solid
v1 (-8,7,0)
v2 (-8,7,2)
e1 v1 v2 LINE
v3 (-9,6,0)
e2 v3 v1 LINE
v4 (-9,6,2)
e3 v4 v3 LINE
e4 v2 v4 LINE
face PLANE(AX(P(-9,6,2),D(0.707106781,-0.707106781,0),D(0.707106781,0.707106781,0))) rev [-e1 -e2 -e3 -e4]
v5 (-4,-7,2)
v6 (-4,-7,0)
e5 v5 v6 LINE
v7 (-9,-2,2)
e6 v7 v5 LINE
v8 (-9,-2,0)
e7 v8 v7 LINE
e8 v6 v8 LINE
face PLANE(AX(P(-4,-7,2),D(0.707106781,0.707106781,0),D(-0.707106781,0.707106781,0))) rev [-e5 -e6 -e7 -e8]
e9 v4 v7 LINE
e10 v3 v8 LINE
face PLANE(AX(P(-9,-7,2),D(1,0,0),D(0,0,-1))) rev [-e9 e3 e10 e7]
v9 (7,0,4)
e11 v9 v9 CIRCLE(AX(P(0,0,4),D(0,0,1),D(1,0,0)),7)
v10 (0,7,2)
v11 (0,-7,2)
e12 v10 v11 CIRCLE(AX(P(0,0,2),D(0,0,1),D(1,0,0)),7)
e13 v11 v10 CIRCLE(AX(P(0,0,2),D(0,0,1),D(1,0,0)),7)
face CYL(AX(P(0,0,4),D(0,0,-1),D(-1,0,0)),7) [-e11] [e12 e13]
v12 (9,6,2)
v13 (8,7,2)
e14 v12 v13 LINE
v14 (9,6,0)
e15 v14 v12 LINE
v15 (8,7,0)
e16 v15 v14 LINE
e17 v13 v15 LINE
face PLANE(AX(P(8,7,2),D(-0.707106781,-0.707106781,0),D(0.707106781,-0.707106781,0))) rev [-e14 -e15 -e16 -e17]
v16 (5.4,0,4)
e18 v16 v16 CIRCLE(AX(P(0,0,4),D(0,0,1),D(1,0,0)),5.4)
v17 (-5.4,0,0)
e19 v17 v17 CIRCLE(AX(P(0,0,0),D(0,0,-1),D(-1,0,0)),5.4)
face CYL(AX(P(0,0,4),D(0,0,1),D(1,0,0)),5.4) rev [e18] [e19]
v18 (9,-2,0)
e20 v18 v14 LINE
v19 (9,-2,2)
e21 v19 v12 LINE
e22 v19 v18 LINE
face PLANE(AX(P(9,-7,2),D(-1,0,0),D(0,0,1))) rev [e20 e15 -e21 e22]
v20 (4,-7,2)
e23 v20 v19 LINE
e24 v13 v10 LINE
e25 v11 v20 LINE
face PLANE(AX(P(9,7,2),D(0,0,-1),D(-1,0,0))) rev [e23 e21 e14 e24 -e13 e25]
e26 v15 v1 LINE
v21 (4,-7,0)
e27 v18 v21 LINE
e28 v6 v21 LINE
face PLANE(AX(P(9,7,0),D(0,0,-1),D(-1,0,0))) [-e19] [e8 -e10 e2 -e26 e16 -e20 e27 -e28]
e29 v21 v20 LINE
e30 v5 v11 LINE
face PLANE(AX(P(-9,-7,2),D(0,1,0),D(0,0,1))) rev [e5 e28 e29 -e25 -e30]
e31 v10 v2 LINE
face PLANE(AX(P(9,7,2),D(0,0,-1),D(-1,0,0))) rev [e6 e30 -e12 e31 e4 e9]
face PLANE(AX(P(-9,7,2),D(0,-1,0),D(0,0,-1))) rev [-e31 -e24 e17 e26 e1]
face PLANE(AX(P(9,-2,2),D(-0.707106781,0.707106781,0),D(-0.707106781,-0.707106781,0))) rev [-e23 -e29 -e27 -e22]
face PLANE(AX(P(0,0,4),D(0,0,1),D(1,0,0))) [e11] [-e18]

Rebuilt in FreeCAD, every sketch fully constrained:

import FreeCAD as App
import Part
import Sketcher

V = App.Vector
Q = App.Units.Quantity


def edges_at(feature, points):
    """Names of the edges that pass closest to the given points."""
    edges = feature.Shape.Edges
    near = lambda p: min(range(len(edges)), key=lambda i: edges[i].distToShape(Part.Vertex(*p))[0])
    return sorted({f"Edge{near(p) + 1}" for p in points})

doc = App.newDocument("Part")
body = doc.addObject("PartDesign::Body", "Body")

# Sketch on XY plane
sketch1 = body.newObject("Sketcher::SketchObject", "Sketch")
sketch1.AttachmentSupport = (doc.getObject("XY_Plane"), [""])
sketch1.MapMode = "FlatFace"
sketch1.addGeometry([
    Part.LineSegment(V(-9, 7, 0), V(-9, -7, 0)),
    Part.LineSegment(V(-9, -7, 0), V(9, -7, 0)),
    Part.LineSegment(V(9, -7, 0), V(9, 7, 0)),
    Part.LineSegment(V(9, 7, 0), V(-9, 7, 0)),
], False)
sketch1.addConstraint([
    Sketcher.Constraint("Coincident", 0, 2, 1, 1),
    Sketcher.Constraint("Coincident", 1, 2, 2, 1),
    Sketcher.Constraint("Coincident", 2, 2, 3, 1),
    Sketcher.Constraint("Coincident", 3, 2, 0, 1),
    Sketcher.Constraint("Vertical", 0),
    Sketcher.Constraint("Horizontal", 1),
    Sketcher.Constraint("Vertical", 2),
    Sketcher.Constraint("Horizontal", 3),
    Sketcher.Constraint("Symmetric", 0, 2, 2, 2, -1, 1),
    Sketcher.Constraint("DistanceX", 1, 1, 1, 2, Q("18 mm")),
    Sketcher.Constraint("DistanceY", 0, 2, 0, 1, Q("14 mm")),
])
pad1 = body.newObject("PartDesign::Pad", "Pad")
pad1.Profile = sketch1
pad1.Length = 2

# Sketch on XY plane
sketch2 = body.newObject("Sketcher::SketchObject", "Sketch001")
sketch2.AttachmentSupport = (doc.getObject("XY_Plane"), [""])
sketch2.MapMode = "FlatFace"
sketch2.AttachmentOffset = App.Placement(V(0, 0, 2), App.Rotation())
sketch2.addGeometry(Part.Circle(V(0, 0, 0), V(0, 0, 1), 7), False)
sketch2.addConstraint([
    Sketcher.Constraint("Coincident", 0, 3, -1, 1),
    Sketcher.Constraint("Diameter", 0, Q("14 mm")),
])
pad2 = body.newObject("PartDesign::Pad", "Pad001")
pad2.Profile = sketch2
pad2.Length = 2

# Sketch on XY plane
sketch3 = body.newObject("Sketcher::SketchObject", "Sketch002")
sketch3.AttachmentSupport = (doc.getObject("XY_Plane"), [""])
sketch3.MapMode = "FlatFace"
sketch3.AttachmentOffset = App.Placement(V(0, 0, 4), App.Rotation())
sketch3.addGeometry(Part.Circle(V(0, 0, 0), V(0, 0, 1), 5), False)
sketch3.addConstraint([
    Sketcher.Constraint("Coincident", 0, 3, -1, 1),
    Sketcher.Constraint("Diameter", 0, Q("10.8 mm")),
])
doc.recompute()
hole = body.newObject("PartDesign::Hole", "Hole")
hole.Profile = sketch3
hole.ThreadType = "None"
hole.Diameter = 10.8
hole.DepthType = "Dimension"
hole.Depth = 8.75
hole.DrillPoint = "Angled"
hole.DrillPointAngle = 118
doc.recompute()

chamfer = body.newObject("PartDesign::Chamfer", "Chamfer")
chamfer.Base = (hole, edges_at(hole, [(9, -7, 1), (-9, -7, 1)]))
chamfer.Size = 5
doc.recompute()

chamfer2 = body.newObject("PartDesign::Chamfer", "Chamfer001")
chamfer2.Base = (chamfer, edges_at(chamfer, [(-9, 7, 1), (9, 7, 1)]))
chamfer2.Size = 1

doc.recompute()
